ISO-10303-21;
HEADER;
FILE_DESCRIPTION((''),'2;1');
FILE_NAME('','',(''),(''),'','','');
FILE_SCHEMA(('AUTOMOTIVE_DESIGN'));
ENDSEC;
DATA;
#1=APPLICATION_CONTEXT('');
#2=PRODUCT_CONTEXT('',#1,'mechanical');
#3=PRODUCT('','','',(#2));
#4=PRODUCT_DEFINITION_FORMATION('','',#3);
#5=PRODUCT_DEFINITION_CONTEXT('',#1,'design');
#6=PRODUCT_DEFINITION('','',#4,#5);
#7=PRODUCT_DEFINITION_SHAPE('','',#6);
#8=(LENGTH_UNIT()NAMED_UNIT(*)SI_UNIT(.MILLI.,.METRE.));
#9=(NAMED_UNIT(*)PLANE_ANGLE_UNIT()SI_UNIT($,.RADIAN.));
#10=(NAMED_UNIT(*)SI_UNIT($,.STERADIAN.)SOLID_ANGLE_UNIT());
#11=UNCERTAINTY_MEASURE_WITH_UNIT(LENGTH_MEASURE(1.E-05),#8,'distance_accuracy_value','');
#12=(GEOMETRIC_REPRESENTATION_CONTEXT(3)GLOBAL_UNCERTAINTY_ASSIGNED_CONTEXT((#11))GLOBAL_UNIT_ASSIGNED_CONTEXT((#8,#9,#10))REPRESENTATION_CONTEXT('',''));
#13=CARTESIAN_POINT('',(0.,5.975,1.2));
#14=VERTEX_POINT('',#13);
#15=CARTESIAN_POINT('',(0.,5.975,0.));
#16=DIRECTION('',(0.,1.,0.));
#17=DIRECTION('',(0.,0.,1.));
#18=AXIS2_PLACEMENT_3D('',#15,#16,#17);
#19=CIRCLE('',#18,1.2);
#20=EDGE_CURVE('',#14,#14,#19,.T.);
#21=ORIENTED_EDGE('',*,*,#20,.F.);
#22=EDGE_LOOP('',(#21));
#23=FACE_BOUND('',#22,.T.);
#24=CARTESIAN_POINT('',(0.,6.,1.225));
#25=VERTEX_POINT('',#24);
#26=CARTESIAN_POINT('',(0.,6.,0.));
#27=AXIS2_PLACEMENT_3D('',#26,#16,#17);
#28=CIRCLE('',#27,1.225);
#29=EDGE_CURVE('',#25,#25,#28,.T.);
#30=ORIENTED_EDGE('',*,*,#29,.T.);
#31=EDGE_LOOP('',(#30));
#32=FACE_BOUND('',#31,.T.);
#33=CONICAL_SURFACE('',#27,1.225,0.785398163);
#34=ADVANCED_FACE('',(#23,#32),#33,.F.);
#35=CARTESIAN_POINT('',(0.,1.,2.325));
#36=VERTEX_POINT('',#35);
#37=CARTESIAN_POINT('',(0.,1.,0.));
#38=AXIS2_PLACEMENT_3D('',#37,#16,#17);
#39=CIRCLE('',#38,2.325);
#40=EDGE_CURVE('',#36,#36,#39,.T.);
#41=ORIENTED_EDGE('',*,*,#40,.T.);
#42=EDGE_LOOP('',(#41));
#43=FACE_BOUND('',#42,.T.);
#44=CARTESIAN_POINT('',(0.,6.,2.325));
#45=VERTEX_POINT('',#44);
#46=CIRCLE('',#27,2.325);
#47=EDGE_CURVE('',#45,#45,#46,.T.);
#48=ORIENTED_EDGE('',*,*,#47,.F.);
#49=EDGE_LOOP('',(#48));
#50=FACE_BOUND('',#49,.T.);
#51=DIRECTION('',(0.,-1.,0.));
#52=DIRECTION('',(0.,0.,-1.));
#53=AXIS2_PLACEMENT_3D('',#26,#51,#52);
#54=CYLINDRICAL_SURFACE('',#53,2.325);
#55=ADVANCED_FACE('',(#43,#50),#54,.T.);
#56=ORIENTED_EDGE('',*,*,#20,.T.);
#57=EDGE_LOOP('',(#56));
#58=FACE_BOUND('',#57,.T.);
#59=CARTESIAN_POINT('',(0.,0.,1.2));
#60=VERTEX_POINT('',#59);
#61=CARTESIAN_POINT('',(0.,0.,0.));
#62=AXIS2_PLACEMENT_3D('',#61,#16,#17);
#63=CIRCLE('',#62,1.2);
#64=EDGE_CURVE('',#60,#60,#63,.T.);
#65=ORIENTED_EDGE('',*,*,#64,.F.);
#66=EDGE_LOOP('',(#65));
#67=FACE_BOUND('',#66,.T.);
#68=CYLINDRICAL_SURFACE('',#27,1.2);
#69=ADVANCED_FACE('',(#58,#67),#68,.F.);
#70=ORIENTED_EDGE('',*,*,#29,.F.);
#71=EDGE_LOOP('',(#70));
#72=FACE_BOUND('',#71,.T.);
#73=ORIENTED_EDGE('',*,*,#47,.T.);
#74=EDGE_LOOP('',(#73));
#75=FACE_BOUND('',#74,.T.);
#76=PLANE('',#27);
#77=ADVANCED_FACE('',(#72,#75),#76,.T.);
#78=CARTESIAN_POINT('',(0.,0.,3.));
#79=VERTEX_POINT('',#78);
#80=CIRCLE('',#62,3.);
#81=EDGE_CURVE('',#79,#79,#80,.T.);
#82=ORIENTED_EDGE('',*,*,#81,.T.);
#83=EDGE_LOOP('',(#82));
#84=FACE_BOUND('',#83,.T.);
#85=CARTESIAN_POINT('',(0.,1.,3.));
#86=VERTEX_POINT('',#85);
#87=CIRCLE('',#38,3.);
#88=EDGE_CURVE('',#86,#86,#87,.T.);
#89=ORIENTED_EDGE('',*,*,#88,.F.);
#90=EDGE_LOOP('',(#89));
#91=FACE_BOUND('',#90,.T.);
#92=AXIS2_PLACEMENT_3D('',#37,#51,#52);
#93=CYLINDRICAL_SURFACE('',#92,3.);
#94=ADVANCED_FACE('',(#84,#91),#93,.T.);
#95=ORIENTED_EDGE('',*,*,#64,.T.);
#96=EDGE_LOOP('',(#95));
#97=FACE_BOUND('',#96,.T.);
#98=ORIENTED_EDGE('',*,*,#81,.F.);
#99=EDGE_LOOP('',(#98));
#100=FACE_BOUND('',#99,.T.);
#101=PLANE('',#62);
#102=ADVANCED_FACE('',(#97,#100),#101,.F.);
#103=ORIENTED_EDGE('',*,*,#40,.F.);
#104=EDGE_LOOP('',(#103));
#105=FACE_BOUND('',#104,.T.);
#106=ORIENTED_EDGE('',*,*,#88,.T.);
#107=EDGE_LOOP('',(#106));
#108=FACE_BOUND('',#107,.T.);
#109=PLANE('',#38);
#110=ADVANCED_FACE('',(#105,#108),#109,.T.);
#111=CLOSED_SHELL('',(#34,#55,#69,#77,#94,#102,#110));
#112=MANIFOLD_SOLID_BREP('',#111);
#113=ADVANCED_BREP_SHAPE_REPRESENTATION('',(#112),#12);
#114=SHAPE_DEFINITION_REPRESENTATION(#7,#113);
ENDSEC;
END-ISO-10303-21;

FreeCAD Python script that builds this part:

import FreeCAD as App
import Part
import Sketcher

V = App.Vector

doc = App.newDocument("Part")
body = doc.addObject("PartDesign::Body", "Body")

sketch1 = body.newObject("Sketcher::SketchObject", "Sketch")
sketch1.AttachmentSupport = (doc.getObject("XZ_Plane"), [""])
sketch1.MapMode = "FlatFace"
sketch1.addGeometry(Part.Circle(V(0, 0, 0), V(0, 0, 1), 3), False)
sketch1.addConstraint([
    Sketcher.Constraint("Coincident", 0, 3, -1, 1),
    Sketcher.Constraint("Diameter", 0, 6.0),
])
pad1 = body.newObject("PartDesign::Pad", "Pad")
pad1.Profile = sketch1
pad1.Length = 1
pad1.Reversed = True

sketch2 = body.newObject("Sketcher::SketchObject", "Sketch001")
sketch2.AttachmentSupport = (doc.getObject("XZ_Plane"), [""])
sketch2.MapMode = "FlatFace"
sketch2.AttachmentOffset = App.Placement(V(0, 0, -1), App.Rotation())
sketch2.addGeometry(Part.Circle(V(0, 0, 0), V(0, 0, 1), 2.3), False)
sketch2.addConstraint([
    Sketcher.Constraint("Coincident", 0, 3, -1, 1),
    Sketcher.Constraint("Diameter", 0, 4.65),
])
pad2 = body.newObject("PartDesign::Pad", "Pad001")
pad2.Profile = sketch2
pad2.Length = 5
pad2.Reversed = True

sketch3 = body.newObject("Sketcher::SketchObject", "Sketch002")
sketch3.AttachmentSupport = (doc.getObject("XZ_Plane"), [""])
sketch3.MapMode = "FlatFace"
sketch3.AttachmentOffset = App.Placement(V(0, 0, -6), App.Rotation())
sketch3.addGeometry(Part.Circle(V(0, 0, 0), V(0, 0, 1), 1.2), False)
sketch3.addConstraint([
    Sketcher.Constraint("Coincident", 0, 3, -1, 1),
    Sketcher.Constraint("Diameter", 0, 2.4),
])
doc.recompute()
hole = body.newObject("PartDesign::Hole", "Hole")
hole.Profile = sketch3
hole.ThreadType = "None"
hole.Diameter = 2.4
hole.DepthType = "ThroughAll"
hole.HoleCutType = "Countersink"
hole.HoleCutDiameter = 2.45
hole.HoleCutCountersinkAngle = 90
hole.Reversed = True

doc.recompute()
